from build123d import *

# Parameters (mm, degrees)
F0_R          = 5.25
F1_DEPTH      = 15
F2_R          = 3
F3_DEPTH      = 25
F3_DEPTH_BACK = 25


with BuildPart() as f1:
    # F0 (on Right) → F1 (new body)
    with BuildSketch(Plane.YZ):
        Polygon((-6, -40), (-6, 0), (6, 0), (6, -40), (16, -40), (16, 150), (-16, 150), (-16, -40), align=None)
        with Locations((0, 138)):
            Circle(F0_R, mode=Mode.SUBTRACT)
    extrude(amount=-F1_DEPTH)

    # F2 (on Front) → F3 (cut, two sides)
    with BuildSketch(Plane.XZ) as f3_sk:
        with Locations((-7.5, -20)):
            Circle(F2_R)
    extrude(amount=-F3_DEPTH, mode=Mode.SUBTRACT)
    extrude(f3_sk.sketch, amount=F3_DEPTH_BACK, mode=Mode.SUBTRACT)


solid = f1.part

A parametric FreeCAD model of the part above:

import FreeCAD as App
import Part
import Sketcher
Q = App.Units.Quantity


def add_polygon(sketch, points):
    """Adds a closed chain of lines whose ends are joined by coincident constraints."""
    first, n = sketch.GeometryCount, len(points)
    for a, b in zip(points, points[1:] + points[:1]):
        sketch.addGeometry(Part.LineSegment(App.Vector(*a, 0), App.Vector(*b, 0)), False)
    for i in range(n):
        sketch.addConstraint(Sketcher.Constraint("Coincident", first + i, 2, first + (i + 1) % n, 1))

doc = App.newDocument("Part")
body = doc.addObject("PartDesign::Body", "Body")

sketch1 = doc.addObject("Sketcher::SketchObject", "Sketch")
body.addObject(sketch1)
sketch1.AttachmentSupport = (doc.YZ_Plane, [""])
sketch1.MapMode = "FlatFace"
add_polygon(sketch1, [(-6, -40), (-6, 0), (6, 0), (6, -40), (16, -40), (16, 150), (-16, 150), (-16, -40)])
sketch1.addGeometry(Part.Circle(App.Vector(0, 138, 0), App.Vector(0, 0, 1), 5), False)
sketch1.addConstraint([
    Sketcher.Constraint("Vertical", 0),
    Sketcher.Constraint("Horizontal", 1),
    Sketcher.Constraint("Vertical", 2),
    Sketcher.Constraint("Horizontal", 3),
    Sketcher.Constraint("Vertical", 4),
    Sketcher.Constraint("Horizontal", 5),
    Sketcher.Constraint("Vertical", 6),
    Sketcher.Constraint("Horizontal", 7),
    Sketcher.Constraint("Symmetric", 0, 2, 1, 2, -1, 1),
    Sketcher.Constraint("Symmetric", 3, 2, 6, 2, -2),
    Sketcher.Constraint("PointOnObject", 8, 3, -2),
    Sketcher.Constraint("Diameter", 8, Q("10.5 mm")),
    Sketcher.Constraint("DistanceX", 1, 1, 1, 2, Q("12 mm")),
    Sketcher.Constraint("DistanceX", 3, 1, 3, 2, Q("10 mm")),
    Sketcher.Constraint("DistanceY", 0, 1, 0, 2, Q("40 mm")),
    Sketcher.Constraint("DistanceY", 4, 1, 4, 2, Q("190 mm")),
    Sketcher.Constraint("DistanceY", -1, 1, 8, 3, Q("138 mm")),
])
pad1 = doc.addObject("PartDesign::Pad", "Pad")
body.addObject(pad1)
pad1.Profile = sketch1
pad1.Length = 15
pad1.Reversed = True

sketch2 = doc.addObject("Sketcher::SketchObject", "Sketch001")
body.addObject(sketch2)
sketch2.AttachmentSupport = (doc.XZ_Plane, [""])
sketch2.MapMode = "FlatFace"
sketch2.addGeometry(Part.Circle(App.Vector(-7.5, -20, 0), App.Vector(0, 0, 1), 3), False)
sketch2.addConstraint([
    Sketcher.Constraint("Diameter", 0, Q("6 mm")),
    Sketcher.Constraint("DistanceY", 0, 3, -1, 1, Q("20 mm")),
    Sketcher.Constraint("DistanceX", 0, 3, -1, 1, Q("7.5 mm")),
])
pocket1 = doc.addObject("PartDesign::Pocket", "Pocket")
body.addObject(pocket1)
pocket1.Profile = sketch2
pocket1.Type = "ThroughAll"
pocket1.Midplane = True

doc.recompute()
